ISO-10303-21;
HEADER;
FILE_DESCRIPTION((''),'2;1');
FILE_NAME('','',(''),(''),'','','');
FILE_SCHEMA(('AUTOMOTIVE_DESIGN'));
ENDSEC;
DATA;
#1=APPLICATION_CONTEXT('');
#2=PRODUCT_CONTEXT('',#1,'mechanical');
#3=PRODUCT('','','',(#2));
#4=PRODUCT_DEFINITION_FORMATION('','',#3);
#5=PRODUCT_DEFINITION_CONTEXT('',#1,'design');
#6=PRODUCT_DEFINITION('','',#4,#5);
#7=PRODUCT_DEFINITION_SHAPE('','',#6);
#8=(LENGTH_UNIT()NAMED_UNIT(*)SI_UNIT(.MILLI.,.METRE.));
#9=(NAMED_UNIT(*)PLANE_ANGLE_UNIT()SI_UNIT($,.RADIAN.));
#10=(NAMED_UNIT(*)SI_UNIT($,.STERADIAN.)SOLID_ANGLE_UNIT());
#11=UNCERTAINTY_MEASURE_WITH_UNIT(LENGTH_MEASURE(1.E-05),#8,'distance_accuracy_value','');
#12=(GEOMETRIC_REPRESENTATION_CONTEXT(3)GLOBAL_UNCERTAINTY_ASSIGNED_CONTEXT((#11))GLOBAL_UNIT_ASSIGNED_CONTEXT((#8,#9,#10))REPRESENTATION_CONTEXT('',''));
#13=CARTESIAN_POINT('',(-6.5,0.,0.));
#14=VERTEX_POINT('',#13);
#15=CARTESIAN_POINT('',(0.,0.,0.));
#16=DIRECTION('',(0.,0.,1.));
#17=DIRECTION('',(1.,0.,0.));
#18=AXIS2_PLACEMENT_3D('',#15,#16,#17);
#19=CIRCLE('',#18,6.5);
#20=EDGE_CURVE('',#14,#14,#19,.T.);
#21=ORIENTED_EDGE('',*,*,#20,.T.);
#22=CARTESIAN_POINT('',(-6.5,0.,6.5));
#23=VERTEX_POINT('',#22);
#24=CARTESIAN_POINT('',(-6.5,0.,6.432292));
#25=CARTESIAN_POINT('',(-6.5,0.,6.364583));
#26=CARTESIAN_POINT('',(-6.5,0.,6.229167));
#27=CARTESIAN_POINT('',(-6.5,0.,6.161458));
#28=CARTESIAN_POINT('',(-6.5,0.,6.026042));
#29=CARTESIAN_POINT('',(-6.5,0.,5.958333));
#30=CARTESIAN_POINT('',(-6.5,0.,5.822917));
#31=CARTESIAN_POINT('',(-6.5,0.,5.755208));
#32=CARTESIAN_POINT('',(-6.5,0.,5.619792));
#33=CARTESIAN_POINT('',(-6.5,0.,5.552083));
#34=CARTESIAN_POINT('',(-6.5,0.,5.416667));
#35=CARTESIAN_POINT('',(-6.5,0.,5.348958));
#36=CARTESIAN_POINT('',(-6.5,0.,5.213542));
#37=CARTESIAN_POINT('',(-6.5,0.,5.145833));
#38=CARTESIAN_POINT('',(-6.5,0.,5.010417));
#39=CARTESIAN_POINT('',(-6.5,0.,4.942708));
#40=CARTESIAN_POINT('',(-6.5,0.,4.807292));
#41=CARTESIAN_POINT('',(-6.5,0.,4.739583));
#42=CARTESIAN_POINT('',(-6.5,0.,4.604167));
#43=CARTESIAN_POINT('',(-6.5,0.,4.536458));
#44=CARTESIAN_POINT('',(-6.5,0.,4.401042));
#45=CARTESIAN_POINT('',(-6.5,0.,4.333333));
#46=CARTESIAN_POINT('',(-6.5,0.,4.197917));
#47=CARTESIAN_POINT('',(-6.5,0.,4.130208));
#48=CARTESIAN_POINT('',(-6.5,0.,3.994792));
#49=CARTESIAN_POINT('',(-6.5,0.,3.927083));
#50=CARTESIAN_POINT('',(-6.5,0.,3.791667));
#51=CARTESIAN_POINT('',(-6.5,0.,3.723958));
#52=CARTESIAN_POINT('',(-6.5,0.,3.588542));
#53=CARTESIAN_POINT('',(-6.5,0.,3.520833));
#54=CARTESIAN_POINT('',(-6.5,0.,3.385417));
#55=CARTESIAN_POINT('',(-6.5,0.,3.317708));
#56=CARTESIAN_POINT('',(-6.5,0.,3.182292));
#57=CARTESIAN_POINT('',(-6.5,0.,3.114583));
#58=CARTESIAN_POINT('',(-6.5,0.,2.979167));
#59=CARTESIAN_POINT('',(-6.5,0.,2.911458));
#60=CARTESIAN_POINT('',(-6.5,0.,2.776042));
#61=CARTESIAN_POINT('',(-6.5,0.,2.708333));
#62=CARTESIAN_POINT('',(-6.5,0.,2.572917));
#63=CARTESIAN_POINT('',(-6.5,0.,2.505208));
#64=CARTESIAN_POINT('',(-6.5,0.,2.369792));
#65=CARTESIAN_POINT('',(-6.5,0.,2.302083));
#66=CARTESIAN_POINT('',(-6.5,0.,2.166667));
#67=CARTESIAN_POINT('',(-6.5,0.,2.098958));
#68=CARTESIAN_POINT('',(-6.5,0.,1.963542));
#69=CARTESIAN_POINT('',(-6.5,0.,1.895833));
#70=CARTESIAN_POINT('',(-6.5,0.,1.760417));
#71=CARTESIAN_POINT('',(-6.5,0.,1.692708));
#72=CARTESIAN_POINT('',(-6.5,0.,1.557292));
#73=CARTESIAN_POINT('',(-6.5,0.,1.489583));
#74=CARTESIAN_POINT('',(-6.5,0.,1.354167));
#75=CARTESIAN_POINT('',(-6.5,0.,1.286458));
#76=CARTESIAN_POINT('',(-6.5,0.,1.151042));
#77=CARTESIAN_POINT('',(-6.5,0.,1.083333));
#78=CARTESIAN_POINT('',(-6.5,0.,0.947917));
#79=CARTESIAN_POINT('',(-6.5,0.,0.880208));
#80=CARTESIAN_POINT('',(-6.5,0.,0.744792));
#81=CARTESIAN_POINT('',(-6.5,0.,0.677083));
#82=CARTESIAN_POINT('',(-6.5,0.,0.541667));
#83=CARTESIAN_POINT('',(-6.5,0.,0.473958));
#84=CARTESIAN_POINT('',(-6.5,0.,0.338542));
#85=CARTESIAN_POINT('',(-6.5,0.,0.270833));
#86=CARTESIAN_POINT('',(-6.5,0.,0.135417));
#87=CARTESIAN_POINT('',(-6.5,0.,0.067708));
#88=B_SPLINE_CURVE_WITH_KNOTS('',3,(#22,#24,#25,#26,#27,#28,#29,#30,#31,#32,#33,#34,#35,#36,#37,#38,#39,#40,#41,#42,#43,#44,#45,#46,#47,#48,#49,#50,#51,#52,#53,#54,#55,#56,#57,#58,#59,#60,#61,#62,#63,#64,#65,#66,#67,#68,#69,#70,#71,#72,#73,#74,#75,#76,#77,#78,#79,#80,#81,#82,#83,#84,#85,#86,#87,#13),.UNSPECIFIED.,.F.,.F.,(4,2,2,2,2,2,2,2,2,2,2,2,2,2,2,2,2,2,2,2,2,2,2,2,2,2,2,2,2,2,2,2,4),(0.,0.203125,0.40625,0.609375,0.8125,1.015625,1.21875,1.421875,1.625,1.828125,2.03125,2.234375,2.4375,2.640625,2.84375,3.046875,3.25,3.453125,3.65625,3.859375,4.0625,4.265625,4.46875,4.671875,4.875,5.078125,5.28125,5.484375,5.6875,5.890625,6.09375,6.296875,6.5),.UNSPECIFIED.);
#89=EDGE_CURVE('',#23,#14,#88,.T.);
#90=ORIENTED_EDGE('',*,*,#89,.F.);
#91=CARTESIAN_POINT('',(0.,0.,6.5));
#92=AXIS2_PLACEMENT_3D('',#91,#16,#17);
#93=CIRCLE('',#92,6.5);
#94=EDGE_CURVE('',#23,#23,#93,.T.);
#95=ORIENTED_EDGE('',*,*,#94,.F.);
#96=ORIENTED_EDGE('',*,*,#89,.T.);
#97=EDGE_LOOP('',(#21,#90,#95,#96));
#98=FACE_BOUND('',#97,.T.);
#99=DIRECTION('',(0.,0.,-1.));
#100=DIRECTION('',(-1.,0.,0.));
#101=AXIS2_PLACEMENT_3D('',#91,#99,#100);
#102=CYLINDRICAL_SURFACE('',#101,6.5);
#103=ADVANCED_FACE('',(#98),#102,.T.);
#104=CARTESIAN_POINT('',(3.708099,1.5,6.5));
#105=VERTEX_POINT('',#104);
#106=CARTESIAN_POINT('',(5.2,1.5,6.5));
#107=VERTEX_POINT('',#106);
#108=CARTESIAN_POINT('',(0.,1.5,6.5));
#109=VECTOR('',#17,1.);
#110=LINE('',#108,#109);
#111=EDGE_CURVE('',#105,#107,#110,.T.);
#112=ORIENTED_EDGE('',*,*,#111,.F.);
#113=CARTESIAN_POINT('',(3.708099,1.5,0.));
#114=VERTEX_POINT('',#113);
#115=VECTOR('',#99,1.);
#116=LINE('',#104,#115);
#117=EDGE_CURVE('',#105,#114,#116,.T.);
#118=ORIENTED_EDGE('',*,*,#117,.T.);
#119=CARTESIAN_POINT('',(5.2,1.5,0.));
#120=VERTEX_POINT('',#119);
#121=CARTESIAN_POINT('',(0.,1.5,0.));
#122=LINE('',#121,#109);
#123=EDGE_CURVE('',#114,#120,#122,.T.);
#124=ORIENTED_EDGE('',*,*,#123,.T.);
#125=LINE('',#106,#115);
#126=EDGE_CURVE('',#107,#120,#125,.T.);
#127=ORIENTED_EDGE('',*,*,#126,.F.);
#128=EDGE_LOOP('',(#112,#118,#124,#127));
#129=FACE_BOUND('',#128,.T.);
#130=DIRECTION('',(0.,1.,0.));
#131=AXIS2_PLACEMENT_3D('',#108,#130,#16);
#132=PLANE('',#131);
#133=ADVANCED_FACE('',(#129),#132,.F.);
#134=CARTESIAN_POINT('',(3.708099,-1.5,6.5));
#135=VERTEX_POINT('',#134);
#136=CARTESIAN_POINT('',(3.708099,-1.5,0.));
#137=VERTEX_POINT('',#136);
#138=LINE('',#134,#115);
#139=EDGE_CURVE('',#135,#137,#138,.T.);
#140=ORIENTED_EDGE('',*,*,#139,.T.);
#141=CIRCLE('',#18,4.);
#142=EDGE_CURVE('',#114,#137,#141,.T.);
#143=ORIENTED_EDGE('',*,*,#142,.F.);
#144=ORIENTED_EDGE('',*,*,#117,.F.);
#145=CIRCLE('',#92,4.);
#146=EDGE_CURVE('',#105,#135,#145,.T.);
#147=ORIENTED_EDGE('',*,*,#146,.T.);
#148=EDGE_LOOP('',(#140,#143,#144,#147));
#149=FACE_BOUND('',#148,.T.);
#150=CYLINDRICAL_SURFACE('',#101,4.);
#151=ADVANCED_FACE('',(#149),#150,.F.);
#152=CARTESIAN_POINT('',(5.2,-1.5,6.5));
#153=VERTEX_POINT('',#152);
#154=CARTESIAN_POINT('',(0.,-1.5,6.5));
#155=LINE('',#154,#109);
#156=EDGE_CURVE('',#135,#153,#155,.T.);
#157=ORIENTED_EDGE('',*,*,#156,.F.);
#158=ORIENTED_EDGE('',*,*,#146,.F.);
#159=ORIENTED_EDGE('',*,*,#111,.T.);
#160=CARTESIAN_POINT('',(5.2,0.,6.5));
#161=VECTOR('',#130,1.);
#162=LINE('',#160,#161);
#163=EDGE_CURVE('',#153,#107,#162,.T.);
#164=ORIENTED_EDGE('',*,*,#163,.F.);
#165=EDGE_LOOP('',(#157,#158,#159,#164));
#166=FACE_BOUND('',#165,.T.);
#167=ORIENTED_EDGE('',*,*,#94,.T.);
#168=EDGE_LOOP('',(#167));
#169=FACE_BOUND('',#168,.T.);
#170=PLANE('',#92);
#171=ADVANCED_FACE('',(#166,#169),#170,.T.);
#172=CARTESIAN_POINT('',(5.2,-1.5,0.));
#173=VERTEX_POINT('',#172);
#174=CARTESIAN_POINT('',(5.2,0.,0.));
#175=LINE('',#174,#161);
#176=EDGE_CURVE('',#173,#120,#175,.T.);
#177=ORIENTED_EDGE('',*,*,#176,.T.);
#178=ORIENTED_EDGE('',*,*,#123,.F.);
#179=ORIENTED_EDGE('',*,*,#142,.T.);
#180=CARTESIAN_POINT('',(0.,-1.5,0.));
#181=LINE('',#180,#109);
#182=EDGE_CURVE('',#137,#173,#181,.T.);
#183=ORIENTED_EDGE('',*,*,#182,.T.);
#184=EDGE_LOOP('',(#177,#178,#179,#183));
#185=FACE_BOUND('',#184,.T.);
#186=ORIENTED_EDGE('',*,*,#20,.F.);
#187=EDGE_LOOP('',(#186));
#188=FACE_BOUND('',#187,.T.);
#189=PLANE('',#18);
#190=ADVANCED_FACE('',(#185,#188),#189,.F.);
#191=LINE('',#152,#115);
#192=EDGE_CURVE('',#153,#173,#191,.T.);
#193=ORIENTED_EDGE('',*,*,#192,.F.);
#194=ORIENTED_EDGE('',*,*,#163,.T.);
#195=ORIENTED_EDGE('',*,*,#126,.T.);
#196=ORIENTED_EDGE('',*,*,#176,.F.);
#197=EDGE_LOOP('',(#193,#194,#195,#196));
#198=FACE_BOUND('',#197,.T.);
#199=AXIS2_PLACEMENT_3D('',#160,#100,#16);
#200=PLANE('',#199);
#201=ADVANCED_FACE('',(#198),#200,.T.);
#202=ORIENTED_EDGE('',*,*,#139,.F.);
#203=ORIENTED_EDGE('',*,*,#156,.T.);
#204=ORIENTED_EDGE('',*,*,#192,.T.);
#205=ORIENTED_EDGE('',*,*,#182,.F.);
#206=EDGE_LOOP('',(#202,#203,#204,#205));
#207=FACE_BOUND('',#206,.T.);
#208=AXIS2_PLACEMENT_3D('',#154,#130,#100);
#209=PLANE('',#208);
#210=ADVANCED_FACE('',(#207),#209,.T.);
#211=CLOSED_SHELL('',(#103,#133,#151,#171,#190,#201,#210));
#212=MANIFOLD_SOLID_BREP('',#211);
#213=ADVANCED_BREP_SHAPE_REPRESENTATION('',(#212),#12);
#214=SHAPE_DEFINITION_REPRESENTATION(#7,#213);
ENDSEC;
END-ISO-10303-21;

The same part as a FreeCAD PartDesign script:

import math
import FreeCAD as App
import Part
import Sketcher
from FreeCAD import Vector
Q = App.Units.Quantity

doc = App.newDocument("Part")
params = doc.addObject("Spreadsheet::Sheet", "Params")
for row, (alias, value) in enumerate([
    ("sketch1_diameter", "13 mm"),
    ("sketch1_radius", "4 mm"),
    ("sketch1_height", "3 mm"),
    ("pad1_length", "6.5 mm"),
], start=1):
    params.set(f"A{row}", alias)
    params.set(f"B{row}", "=" + value)
    params.setAlias(f"B{row}", alias)

body = doc.addObject("PartDesign::Body", "Body")

# Sketch on XY plane
sketch1 = body.newObject("Sketcher::SketchObject", "Sketch")
sketch1.AttachmentSupport = (doc.getObject("XY_Plane"), [""])
sketch1.MapMode = "FlatFace"
sketch1.addGeometry(Part.Circle(Vector(0, 0, 0), Vector(0, 0, 1), 6.5), False)
sketch1.addGeometry(Part.LineSegment(Vector(5.2, 1.5, 0), Vector(5.2, -1.5, 0)), False)
sketch1.addGeometry(Part.LineSegment(Vector(5.2, -1.5, 0), Vector(3.708099, -1.5, 0)), False)
sketch1.addGeometry(Part.ArcOfCircle(Part.Circle(Vector(0, 0, 0), Vector(0, 0, 1), 4), math.radians(22.024313), math.radians(337.975687)), False)
sketch1.addGeometry(Part.LineSegment(Vector(3.708099, 1.5, 0), Vector(5.2, 1.5, 0)), False)
sketch1.addConstraint(Sketcher.Constraint("Coincident", 1, 2, 2, 1))
sketch1.addConstraint(Sketcher.Constraint("Coincident", 2, 2, 3, 2))
sketch1.addConstraint(Sketcher.Constraint("Coincident", 3, 1, 4, 1))
sketch1.addConstraint(Sketcher.Constraint("Coincident", 4, 2, 1, 1))
sketch1.addConstraint(Sketcher.Constraint("Vertical", 1))
sketch1.addConstraint(Sketcher.Constraint("Horizontal", 2))
sketch1.addConstraint(Sketcher.Constraint("Horizontal", 4))
sketch1.addConstraint(Sketcher.Constraint("Coincident", 0, 3, -1, 1))
sketch1.addConstraint(Sketcher.Constraint("Coincident", 3, 3, -1, 1))
sketch1.addConstraint(Sketcher.Constraint("Vertical", 2, 2, 3, 1))
sketch1.addConstraint(Sketcher.Constraint("Diameter", 0, Q("13 mm")))
sketch1.addConstraint(Sketcher.Constraint("Radius", 3, Q("4 mm")))
sketch1.addConstraint(Sketcher.Constraint("DistanceY", 1, 2, 1, 1, Q("3 mm")))
sketch1.addConstraint(Sketcher.Constraint("DistanceX", -1, 1, 1, 2, Q("5.2 mm")))
sketch1.setExpression("Constraints[10]", "Params.sketch1_diameter")
sketch1.setExpression("Constraints[11]", "Params.sketch1_radius")
sketch1.setExpression("Constraints[12]", "Params.sketch1_height")
pad1 = body.newObject("PartDesign::Pad", "Pad")
pad1.Profile = sketch1
pad1.setExpression("Length", "Params.pad1_length")

doc.recompute()
